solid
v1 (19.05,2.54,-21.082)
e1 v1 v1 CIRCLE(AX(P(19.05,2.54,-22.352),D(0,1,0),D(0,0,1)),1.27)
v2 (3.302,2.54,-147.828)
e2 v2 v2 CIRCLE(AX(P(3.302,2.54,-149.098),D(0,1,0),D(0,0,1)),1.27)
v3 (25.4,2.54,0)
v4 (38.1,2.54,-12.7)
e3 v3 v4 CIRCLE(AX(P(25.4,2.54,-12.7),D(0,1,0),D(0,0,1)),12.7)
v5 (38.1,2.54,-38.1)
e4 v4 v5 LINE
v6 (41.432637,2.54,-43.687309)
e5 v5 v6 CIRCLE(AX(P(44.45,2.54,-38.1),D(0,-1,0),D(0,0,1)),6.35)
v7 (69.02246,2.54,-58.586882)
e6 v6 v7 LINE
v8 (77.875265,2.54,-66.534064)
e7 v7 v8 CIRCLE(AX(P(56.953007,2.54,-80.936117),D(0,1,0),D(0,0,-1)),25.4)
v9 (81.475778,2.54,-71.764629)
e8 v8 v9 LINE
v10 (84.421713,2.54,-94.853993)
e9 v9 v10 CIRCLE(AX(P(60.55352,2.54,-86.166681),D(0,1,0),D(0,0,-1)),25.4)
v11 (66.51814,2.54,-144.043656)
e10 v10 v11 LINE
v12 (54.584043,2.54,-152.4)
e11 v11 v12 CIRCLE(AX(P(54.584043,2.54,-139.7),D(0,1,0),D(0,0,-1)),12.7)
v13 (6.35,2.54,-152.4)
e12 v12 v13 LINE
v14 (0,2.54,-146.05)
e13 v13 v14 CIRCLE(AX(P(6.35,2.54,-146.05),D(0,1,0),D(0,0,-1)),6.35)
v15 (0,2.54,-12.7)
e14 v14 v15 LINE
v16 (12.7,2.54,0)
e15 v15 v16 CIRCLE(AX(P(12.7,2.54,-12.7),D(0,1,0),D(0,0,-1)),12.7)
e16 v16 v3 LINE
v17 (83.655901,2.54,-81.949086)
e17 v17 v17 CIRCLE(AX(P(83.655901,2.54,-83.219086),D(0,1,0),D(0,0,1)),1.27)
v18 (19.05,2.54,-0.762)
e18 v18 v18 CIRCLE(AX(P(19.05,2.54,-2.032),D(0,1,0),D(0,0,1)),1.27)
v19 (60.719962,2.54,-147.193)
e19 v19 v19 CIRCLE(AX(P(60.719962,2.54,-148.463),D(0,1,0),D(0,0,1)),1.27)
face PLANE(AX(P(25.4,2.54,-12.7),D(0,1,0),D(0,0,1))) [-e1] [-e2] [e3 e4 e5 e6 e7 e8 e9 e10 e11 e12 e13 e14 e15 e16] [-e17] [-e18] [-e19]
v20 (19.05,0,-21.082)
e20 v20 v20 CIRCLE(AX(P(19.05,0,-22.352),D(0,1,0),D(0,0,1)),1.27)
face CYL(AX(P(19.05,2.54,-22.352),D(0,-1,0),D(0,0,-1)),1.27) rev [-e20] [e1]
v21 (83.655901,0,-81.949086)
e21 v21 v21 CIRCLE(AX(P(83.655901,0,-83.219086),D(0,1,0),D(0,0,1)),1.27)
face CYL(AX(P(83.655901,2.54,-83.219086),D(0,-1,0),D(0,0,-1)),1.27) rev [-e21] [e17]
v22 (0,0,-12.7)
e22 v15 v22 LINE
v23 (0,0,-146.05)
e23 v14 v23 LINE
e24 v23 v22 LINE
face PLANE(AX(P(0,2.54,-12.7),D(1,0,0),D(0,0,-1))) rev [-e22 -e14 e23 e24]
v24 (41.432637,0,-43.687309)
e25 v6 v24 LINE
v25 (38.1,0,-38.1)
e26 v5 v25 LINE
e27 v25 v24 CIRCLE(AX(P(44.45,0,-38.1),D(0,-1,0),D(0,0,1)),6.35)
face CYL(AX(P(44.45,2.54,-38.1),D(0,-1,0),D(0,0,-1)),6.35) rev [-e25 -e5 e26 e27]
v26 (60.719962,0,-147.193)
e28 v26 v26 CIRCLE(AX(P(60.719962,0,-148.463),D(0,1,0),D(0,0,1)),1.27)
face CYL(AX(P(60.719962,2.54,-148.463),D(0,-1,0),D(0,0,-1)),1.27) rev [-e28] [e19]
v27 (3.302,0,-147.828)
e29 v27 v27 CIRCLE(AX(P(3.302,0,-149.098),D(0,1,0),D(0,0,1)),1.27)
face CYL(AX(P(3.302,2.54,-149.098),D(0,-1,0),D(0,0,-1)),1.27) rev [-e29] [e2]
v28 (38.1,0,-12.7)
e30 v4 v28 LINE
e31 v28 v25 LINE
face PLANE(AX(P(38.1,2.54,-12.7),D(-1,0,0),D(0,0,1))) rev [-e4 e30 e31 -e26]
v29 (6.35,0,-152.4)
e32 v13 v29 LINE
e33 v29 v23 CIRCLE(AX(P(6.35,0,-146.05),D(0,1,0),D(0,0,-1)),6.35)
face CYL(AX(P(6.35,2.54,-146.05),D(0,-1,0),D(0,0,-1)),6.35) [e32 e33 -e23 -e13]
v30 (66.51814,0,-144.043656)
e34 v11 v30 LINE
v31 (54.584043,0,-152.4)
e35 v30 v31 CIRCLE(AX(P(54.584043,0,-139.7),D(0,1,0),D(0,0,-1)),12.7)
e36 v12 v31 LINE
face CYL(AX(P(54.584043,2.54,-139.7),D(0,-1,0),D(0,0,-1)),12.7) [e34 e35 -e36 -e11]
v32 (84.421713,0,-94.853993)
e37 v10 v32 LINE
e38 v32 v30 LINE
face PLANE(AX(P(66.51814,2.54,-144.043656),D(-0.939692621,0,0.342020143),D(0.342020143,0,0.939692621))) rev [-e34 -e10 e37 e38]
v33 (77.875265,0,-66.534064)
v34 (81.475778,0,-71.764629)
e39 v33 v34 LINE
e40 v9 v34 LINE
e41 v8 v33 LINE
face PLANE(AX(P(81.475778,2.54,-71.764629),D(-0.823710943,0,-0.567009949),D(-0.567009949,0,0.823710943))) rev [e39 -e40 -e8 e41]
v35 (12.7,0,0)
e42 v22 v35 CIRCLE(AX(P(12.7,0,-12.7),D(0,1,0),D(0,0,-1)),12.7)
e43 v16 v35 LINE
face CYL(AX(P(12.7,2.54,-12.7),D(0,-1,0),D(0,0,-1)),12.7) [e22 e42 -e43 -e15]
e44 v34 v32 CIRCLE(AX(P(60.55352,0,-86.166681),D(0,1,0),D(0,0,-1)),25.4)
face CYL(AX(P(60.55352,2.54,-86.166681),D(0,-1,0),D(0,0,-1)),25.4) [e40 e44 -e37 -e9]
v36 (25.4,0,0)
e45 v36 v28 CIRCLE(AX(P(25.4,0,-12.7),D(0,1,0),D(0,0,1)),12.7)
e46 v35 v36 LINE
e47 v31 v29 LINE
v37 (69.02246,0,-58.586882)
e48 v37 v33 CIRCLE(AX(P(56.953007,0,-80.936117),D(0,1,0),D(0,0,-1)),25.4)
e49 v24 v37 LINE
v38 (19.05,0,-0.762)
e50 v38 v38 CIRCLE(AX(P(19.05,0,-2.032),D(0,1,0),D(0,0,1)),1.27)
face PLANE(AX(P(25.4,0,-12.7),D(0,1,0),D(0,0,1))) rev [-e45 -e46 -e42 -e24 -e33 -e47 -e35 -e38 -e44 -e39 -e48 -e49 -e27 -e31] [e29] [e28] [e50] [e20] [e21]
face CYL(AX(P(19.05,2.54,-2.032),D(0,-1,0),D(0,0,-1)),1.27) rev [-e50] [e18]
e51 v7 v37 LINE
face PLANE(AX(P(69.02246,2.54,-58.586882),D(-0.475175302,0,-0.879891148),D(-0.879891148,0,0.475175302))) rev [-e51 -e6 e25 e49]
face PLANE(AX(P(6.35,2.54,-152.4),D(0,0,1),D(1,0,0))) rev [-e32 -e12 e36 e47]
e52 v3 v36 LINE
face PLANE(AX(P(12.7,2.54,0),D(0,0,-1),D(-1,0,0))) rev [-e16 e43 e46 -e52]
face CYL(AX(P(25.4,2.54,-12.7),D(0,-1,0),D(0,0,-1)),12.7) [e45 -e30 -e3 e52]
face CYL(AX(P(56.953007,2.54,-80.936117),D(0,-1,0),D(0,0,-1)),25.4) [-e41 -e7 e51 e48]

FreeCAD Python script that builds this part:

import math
import FreeCAD as App
import Part
import Sketcher
from FreeCAD import Vector
Q = App.Units.Quantity

doc = App.newDocument("Part")
params = doc.addObject("Spreadsheet::Sheet", "Params")
for row, (alias, value) in enumerate([
    ("sketch1_radius", "1 in"),
    ("sketch1_radius2", "0.5 in"),
    ("sketch1_height", "1 in"),
    ("sketch1_radius3", "0.25 in"),
    ("sketch1_width", "0.5 in"),
    ("pad1_length", "0.1 in"),
    ("sketch2_diameter", "0.1 in"),
], start=1):
    params.set(f"A{row}", alias)
    params.set(f"B{row}", "=" + value)
    params.setAlias(f"B{row}", alias)

body = doc.addObject("PartDesign::Body", "Body")

# Sketch on XZ plane
sketch1 = body.newObject("Sketcher::SketchObject", "Sketch")
sketch1.AttachmentSupport = (doc.getObject("XZ_Plane"), [""])
sketch1.MapMode = "FlatFace"
sketch1.addGeometry([
    Part.LineSegment(Vector(13, 0, 0), Vector(25, 0, 0)),  # 0
    Part.ArcOfCircle(Part.Circle(Vector(25, -13, 0), Vector(0, 0, 1), 13), math.radians(0), math.radians(90)),  # 1
    Part.LineSegment(Vector(38, -13, 0), Vector(38, -38, 0)),  # 2
    Part.ArcOfCircle(Part.Circle(Vector(44, -38, 0), Vector(0, 0, 1), 6), math.radians(-180), math.radians(-118)),  # 3
    Part.LineSegment(Vector(41, -44, 0), Vector(69, -59, 0)),  # 4
    Part.ArcOfCircle(Part.Circle(Vector(57, -81, 0), Vector(0, 0, 1), 25), math.radians(35), math.radians(62)),  # 5
    Part.LineSegment(Vector(78, -67, 0), Vector(81, -72, 0)),  # 6
    Part.ArcOfCircle(Part.Circle(Vector(61, -86, 0), Vector(0, 0, 1), 25), math.radians(-20), math.radians(35)),  # 7
    Part.LineSegment(Vector(84, -95, 0), Vector(67, -144, 0)),  # 8
    Part.ArcOfCircle(Part.Circle(Vector(55, -140, 0), Vector(0, 0, 1), 13), math.radians(-90), math.radians(-20)),  # 9
    Part.LineSegment(Vector(55, -152, 0), Vector(6, -152, 0)),  # 10
    Part.ArcOfCircle(Part.Circle(Vector(6, -146, 0), Vector(0, 0, 1), 6), math.radians(180), math.radians(270)),  # 11
    Part.LineSegment(Vector(0, -146, 0), Vector(0, -13, 0)),  # 12
    Part.ArcOfCircle(Part.Circle(Vector(13, -13, 0), Vector(0, 0, 1), 13), math.radians(90), math.radians(180)),  # 13
], False)
sketch1.addConstraint([
    Sketcher.Constraint("Tangent", 0, 2, 1, 2),
    Sketcher.Constraint("Tangent", 1, 1, 2, 1),
    Sketcher.Constraint("Tangent", 2, 2, 3, 1),
    Sketcher.Constraint("Tangent", 3, 2, 4, 1),
    Sketcher.Constraint("Tangent", 4, 2, 5, 2),
    Sketcher.Constraint("Tangent", 5, 1, 6, 1),
    Sketcher.Constraint("Tangent", 6, 2, 7, 2),
    Sketcher.Constraint("Tangent", 7, 1, 8, 1),
    Sketcher.Constraint("Tangent", 8, 2, 9, 2),
    Sketcher.Constraint("Tangent", 9, 1, 10, 1),
    Sketcher.Constraint("Tangent", 10, 2, 11, 2),
    Sketcher.Constraint("Tangent", 11, 1, 12, 1),
    Sketcher.Constraint("Tangent", 12, 2, 13, 2),
    Sketcher.Constraint("Tangent", 13, 1, 0, 1),
    Sketcher.Constraint("Horizontal", 0),
    Sketcher.Constraint("Vertical", 2),
    Sketcher.Constraint("Horizontal", 10),
    Sketcher.Constraint("Vertical", 12),
    Sketcher.Constraint("Equal", 5, 7),
    Sketcher.Constraint("Equal", 1, 9),
    Sketcher.Constraint("Equal", 3, 11),
    Sketcher.Constraint("Equal", 9, 13),
    Sketcher.Constraint("PointOnObject", 0, 2, -1),
    Sketcher.Constraint("PointOnObject", 11, 1, -2),
    Sketcher.Constraint("Radius", 5, Q("1 in")),
    Sketcher.Constraint("Radius", 1, Q("0.5 in")),
    Sketcher.Constraint("DistanceY", 2, 2, 2, 1, Q("1 in")),
    Sketcher.Constraint("Radius", 3, Q("0.25 in")),
    Sketcher.Constraint("DistanceX", 0, 1, 0, 2, Q("0.5 in")),
    Sketcher.Constraint("DistanceY", 9, 1, -1, 1, Q("6 in")),
    Sketcher.Constraint("Angle", 8, Q("-110 deg")),
    Sketcher.Constraint("Distance", 6, Q("0.25 in")),
    Sketcher.Constraint("DistanceY", 7, 3, 4, 2, Q("27.5798 mm")),
    Sketcher.Constraint("Distance", 4, Q("31.35595 mm")),
    Sketcher.Constraint("DistanceX", 10, 2, 10, 1, Q("48.234043 mm")),
])
sketch1.setExpression("Constraints[24]", "Params.sketch1_radius")
sketch1.setExpression("Constraints[25]", "Params.sketch1_radius2")
sketch1.setExpression("Constraints[26]", "Params.sketch1_height")
sketch1.setExpression("Constraints[27]", "Params.sketch1_radius3")
sketch1.setExpression("Constraints[28]", "Params.sketch1_width")
pad1 = body.newObject("PartDesign::Pad", "Pad")
pad1.Profile = sketch1
pad1.setExpression("Length", "Params.pad1_length")
pad1.Reversed = True

# Sketch on XZ plane
sketch2 = body.newObject("Sketcher::SketchObject", "Sketch001")
sketch2.AttachmentSupport = (doc.getObject("XZ_Plane"), [""])
sketch2.MapMode = "FlatFace"
sketch2.addGeometry([
    Part.Circle(Vector(3.3, -149.1, 0), Vector(0, 0, 1), 1.3),  # 0
    Part.Circle(Vector(60.7, -148.5, 0), Vector(0, 0, 1), 1.3),  # 1
    Part.Circle(Vector(83.7, -83.2, 0), Vector(0, 0, 1), 1.3),  # 2
    Part.Circle(Vector(19.1, -22.4, 0), Vector(0, 0, 1), 1.3),  # 3
    Part.Circle(Vector(19.1, -2, 0), Vector(0, 0, 1), 1.3),  # 4
], False)
sketch2.addConstraint([
    Sketcher.Constraint("Equal", 0, 1),
    Sketcher.Constraint("Equal", 1, 2),
    Sketcher.Constraint("Equal", 2, 3),
    Sketcher.Constraint("Equal", 3, 4),
    Sketcher.Constraint("Vertical", 3, 3, 4, 3),
    Sketcher.Constraint("Diameter", 0, Q("0.1 in")),
    Sketcher.Constraint("DistanceY", 3, 3, 4, 3, Q("0.8 in")),
    Sketcher.Constraint("DistanceX", -1, 1, 0, 3, Q("0.13 in")),
    Sketcher.Constraint("DistanceY", 0, 3, -1, 1, Q("5.87 in")),
    Sketcher.Constraint("DistanceX", -1, 1, 3, 3, Q("0.75 in")),
    Sketcher.Constraint("DistanceY", 3, 3, -1, 1, Q("0.88 in")),
    Sketcher.Constraint("DistanceY", 1, 3, -1, 1, Q("5.845 in")),
    Sketcher.Constraint("DistanceX", -1, 1, 2, 3, Q("83.655901 mm")),
    Sketcher.Constraint("DistanceX", 1, 3, 2, 3, Q("22.935939 mm")),
    Sketcher.Constraint("DistanceY", 2, 3, -1, 1, Q("83.219086 mm")),
])
sketch2.setExpression("Constraints[5]", "Params.sketch2_diameter")
pocket1 = body.newObject("PartDesign::Pocket", "Pocket")
pocket1.Profile = sketch2
pocket1.Type = "ThroughAll"

doc.recompute()
